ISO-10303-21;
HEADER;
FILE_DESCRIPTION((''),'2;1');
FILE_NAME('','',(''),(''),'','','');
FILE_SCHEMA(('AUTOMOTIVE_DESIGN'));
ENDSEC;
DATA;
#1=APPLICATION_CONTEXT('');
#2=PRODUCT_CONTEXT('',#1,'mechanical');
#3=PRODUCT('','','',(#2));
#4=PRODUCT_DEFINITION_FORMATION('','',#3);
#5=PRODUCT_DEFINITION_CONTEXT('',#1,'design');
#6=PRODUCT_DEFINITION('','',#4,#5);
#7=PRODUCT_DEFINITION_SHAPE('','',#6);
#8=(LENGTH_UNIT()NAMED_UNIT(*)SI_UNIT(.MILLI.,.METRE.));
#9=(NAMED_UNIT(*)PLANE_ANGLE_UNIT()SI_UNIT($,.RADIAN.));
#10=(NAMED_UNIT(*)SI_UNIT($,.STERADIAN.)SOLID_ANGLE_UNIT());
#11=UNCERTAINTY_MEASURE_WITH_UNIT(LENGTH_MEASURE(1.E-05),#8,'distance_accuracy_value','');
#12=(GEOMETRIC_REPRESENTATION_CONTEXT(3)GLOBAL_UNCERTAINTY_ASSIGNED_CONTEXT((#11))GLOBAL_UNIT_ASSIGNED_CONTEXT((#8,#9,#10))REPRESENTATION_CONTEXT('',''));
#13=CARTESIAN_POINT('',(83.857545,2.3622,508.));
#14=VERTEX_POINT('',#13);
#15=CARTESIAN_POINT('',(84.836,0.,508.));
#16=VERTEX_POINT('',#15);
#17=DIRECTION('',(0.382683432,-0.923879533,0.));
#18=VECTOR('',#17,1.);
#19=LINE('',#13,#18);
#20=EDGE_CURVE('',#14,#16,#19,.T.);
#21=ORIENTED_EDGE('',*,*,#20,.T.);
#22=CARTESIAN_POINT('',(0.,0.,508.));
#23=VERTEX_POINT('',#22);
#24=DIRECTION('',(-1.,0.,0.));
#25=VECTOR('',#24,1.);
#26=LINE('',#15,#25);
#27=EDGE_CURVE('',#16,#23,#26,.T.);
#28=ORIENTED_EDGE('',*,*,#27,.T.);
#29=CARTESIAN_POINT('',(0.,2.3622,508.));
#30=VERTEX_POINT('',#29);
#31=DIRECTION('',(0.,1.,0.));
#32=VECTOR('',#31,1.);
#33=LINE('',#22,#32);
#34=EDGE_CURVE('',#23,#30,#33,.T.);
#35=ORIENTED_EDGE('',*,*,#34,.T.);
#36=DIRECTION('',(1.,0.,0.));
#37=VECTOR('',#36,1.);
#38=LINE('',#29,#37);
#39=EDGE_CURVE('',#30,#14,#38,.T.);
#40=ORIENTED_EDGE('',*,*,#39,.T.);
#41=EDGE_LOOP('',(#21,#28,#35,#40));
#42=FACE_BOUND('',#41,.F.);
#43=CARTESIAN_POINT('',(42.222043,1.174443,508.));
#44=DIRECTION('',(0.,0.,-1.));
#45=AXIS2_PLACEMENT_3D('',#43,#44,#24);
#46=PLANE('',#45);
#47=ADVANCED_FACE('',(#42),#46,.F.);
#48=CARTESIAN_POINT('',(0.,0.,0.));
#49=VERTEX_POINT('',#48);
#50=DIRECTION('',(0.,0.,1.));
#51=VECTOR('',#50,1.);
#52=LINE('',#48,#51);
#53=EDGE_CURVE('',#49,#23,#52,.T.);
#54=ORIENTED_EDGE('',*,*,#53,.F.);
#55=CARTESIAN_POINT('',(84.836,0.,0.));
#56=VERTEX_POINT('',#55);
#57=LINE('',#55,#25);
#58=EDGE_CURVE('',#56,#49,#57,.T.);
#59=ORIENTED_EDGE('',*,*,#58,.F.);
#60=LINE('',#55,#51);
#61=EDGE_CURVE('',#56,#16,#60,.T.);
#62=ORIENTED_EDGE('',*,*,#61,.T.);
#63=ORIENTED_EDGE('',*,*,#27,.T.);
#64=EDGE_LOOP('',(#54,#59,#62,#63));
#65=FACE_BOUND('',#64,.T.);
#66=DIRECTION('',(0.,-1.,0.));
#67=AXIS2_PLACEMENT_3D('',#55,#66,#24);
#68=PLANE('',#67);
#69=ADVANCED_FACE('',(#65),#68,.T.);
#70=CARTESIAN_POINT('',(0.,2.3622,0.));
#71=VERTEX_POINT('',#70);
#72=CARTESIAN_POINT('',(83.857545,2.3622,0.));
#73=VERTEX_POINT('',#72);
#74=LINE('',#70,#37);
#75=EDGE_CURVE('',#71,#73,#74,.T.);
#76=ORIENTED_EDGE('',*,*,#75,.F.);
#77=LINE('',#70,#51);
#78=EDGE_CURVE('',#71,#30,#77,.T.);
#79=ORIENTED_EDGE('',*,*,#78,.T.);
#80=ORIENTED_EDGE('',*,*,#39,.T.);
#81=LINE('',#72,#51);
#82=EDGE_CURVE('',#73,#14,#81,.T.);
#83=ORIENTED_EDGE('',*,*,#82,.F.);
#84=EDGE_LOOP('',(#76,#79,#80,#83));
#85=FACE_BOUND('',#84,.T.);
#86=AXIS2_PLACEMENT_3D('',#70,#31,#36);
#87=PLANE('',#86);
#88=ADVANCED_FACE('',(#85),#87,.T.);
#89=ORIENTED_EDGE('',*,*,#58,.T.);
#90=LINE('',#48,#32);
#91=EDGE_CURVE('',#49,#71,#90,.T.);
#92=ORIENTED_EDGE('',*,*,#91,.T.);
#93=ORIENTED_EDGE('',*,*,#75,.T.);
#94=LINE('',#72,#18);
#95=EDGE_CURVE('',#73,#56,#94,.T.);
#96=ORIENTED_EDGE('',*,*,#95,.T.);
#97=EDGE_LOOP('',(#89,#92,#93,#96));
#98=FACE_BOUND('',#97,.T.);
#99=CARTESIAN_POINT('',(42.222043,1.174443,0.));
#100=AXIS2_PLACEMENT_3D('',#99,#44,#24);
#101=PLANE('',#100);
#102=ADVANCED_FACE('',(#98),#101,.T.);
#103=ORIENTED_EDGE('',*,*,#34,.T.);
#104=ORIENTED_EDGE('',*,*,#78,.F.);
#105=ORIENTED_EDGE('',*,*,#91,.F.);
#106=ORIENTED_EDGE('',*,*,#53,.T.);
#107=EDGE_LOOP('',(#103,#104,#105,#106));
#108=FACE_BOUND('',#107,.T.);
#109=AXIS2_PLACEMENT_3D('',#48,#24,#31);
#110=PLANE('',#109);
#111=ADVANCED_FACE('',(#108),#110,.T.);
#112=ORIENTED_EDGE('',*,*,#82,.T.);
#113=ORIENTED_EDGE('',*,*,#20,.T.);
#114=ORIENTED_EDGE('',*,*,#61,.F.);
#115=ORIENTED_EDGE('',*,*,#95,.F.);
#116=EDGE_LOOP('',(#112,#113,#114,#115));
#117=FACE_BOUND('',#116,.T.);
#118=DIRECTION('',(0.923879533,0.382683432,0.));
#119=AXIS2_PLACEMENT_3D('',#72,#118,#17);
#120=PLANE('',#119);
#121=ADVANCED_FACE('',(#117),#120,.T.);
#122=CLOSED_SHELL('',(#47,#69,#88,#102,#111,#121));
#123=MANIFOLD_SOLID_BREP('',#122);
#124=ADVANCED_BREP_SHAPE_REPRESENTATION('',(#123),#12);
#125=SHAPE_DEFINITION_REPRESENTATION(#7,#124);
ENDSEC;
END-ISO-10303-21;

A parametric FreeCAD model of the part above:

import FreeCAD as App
import Part
import Sketcher
from FreeCAD import Vector
Q = App.Units.Quantity

doc = App.newDocument("Part")
params = doc.addObject("Spreadsheet::Sheet", "Params")
for row, (alias, value) in enumerate([
    ("sketch1_width", "3.34 in"),
    ("sketch1_height", "0.093 in"),
    ("pad1_length", "20 in"),
], start=1):
    params.set(f"A{row}", alias)
    params.set(f"B{row}", "=" + value)
    params.setAlias(f"B{row}", alias)

body = doc.addObject("PartDesign::Body", "Body")

# Sketch on XY plane
sketch1 = body.newObject("Sketcher::SketchObject", "Sketch")
sketch1.AttachmentSupport = (doc.getObject("XY_Plane"), [""])
sketch1.MapMode = "FlatFace"
sketch1.addGeometry(Part.LineSegment(Vector(0, 2.3622, 0), Vector(0, 0, 0)), False)
sketch1.addGeometry(Part.LineSegment(Vector(0, 0, 0), Vector(84.836, 0, 0)), False)
sketch1.addGeometry(Part.LineSegment(Vector(84.836, 0, 0), Vector(83.857545, 2.3622, 0)), False)
sketch1.addGeometry(Part.LineSegment(Vector(83.857545, 2.3622, 0), Vector(0, 2.3622, 0)), False)
sketch1.addConstraint(Sketcher.Constraint("Coincident", 0, 2, 1, 1))
sketch1.addConstraint(Sketcher.Constraint("Coincident", 1, 2, 2, 1))
sketch1.addConstraint(Sketcher.Constraint("Coincident", 2, 2, 3, 1))
sketch1.addConstraint(Sketcher.Constraint("Coincident", 3, 2, 0, 1))
sketch1.addConstraint(Sketcher.Constraint("Vertical", 0))
sketch1.addConstraint(Sketcher.Constraint("Horizontal", 1))
sketch1.addConstraint(Sketcher.Constraint("Horizontal", 3))
sketch1.addConstraint(Sketcher.Constraint("Coincident", 0, 2, -1, 1))
sketch1.addConstraint(Sketcher.Constraint("DistanceX", 1, 1, 1, 2, Q("3.34 in")))
sketch1.addConstraint(Sketcher.Constraint("Angle", 2, Q("112.5 deg")))
sketch1.addConstraint(Sketcher.Constraint("DistanceY", 0, 2, 0, 1, Q("0.093 in")))
sketch1.setExpression("Constraints[8]", "Params.sketch1_width")
sketch1.setExpression("Constraints[10]", "Params.sketch1_height")
pad1 = body.newObject("PartDesign::Pad", "Pad")
pad1.Profile = sketch1
pad1.setExpression("Length", "Params.pad1_length")

doc.recompute()
